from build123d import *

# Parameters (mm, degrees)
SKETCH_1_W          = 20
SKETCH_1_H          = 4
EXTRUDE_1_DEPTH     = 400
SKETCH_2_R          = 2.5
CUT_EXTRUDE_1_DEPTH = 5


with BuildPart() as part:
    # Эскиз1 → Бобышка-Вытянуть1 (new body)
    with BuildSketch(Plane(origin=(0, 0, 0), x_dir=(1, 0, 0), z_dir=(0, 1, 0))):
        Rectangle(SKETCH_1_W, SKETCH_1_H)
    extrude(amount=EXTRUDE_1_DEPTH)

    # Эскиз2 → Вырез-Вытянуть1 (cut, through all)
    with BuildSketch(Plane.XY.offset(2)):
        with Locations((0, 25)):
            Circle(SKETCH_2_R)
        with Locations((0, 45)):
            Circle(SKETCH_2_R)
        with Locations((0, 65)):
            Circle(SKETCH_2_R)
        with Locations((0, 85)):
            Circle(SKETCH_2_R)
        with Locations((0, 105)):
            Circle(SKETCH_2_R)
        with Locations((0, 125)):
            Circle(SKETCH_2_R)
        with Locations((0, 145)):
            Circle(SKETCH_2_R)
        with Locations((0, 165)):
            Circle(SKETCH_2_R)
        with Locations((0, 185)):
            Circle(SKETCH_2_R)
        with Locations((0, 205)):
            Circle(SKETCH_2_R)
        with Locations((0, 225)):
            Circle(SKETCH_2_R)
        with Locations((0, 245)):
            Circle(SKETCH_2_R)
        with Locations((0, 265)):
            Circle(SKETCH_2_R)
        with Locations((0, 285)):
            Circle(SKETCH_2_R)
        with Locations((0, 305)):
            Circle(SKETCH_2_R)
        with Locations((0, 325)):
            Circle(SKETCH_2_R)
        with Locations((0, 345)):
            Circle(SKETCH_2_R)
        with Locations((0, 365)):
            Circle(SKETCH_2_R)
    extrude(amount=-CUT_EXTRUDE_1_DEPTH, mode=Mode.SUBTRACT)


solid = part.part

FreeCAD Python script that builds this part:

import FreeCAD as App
import Part
import Sketcher
from FreeCAD import Vector


def add_polygon(sketch, points):
    """Adds a closed chain of lines whose ends are joined by coincident constraints."""
    first, n = sketch.GeometryCount, len(points)
    for a, b in zip(points, points[1:] + points[:1]):
        sketch.addGeometry(Part.LineSegment(App.Vector(*a, 0), App.Vector(*b, 0)), False)
    for i in range(n):
        sketch.addConstraint(Sketcher.Constraint("Coincident", first + i, 2, first + (i + 1) % n, 1))

doc = App.newDocument("Part")
body = doc.addObject("PartDesign::Body", "Body")

# Sketch on XZ plane
sketch1 = doc.addObject("Sketcher::SketchObject", "Sketch")
body.addObject(sketch1)
sketch1.AttachmentSupport = (doc.XZ_Plane, [""])
sketch1.MapMode = "FlatFace"
add_polygon(sketch1, [(-10, -2), (-10, 2), (10, 2), (10, -2)])  # lines 0-3
sketch1.addConstraint([
    Sketcher.Constraint("Vertical", 0),
    Sketcher.Constraint("Horizontal", 1),
    Sketcher.Constraint("Vertical", 2),
    Sketcher.Constraint("Horizontal", 3),
    Sketcher.Constraint("Symmetric", 0, 2, 2, 2, -1, 1),
    Sketcher.Constraint("DistanceX", 1, 1, 1, 2, 20.0),
    Sketcher.Constraint("DistanceY", 0, 1, 0, 2, 4.0),
])
pad1 = doc.addObject("PartDesign::Pad", "Pad")
body.addObject(pad1)
pad1.Profile = sketch1
pad1.Length = 400
pad1.Reversed = True

# Sketch on XY plane
sketch2 = doc.addObject("Sketcher::SketchObject", "Sketch001")
body.addObject(sketch2)
sketch2.AttachmentSupport = (doc.XY_Plane, [""])
sketch2.MapMode = "FlatFace"
sketch2.AttachmentOffset = App.Placement(Vector(0, 0, 2), App.Rotation())
sketch2.addGeometry([
    Part.Circle(Vector(0, 25, 0), Vector(0, 0, 1), 2.5),  # 0
    Part.Circle(Vector(0, 45, 0), Vector(0, 0, 1), 2.5),  # 1
    Part.Circle(Vector(0, 65, 0), Vector(0, 0, 1), 2.5),  # 2
    Part.Circle(Vector(0, 85, 0), Vector(0, 0, 1), 2.5),  # 3
    Part.Circle(Vector(0, 105, 0), Vector(0, 0, 1), 2.5),  # 4
    Part.Circle(Vector(0, 125, 0), Vector(0, 0, 1), 2.5),  # 5
    Part.Circle(Vector(0, 145, 0), Vector(0, 0, 1), 2.5),  # 6
    Part.Circle(Vector(0, 165, 0), Vector(0, 0, 1), 2.5),  # 7
    Part.Circle(Vector(0, 185, 0), Vector(0, 0, 1), 2.5),  # 8
    Part.Circle(Vector(0, 205, 0), Vector(0, 0, 1), 2.5),  # 9
    Part.Circle(Vector(0, 225, 0), Vector(0, 0, 1), 2.5),  # 10
    Part.Circle(Vector(0, 245, 0), Vector(0, 0, 1), 2.5),  # 11
    Part.Circle(Vector(0, 265, 0), Vector(0, 0, 1), 2.5),  # 12
    Part.Circle(Vector(0, 285, 0), Vector(0, 0, 1), 2.5),  # 13
    Part.Circle(Vector(0, 305, 0), Vector(0, 0, 1), 2.5),  # 14
    Part.Circle(Vector(0, 325, 0), Vector(0, 0, 1), 2.5),  # 15
    Part.Circle(Vector(0, 345, 0), Vector(0, 0, 1), 2.5),  # 16
    Part.Circle(Vector(0, 365, 0), Vector(0, 0, 1), 2.5),  # 17
], False)
sketch2.addConstraint([
    Sketcher.Constraint("Equal", 0, 1),
    Sketcher.Constraint("Equal", 1, 2),
    Sketcher.Constraint("Equal", 2, 3),
    Sketcher.Constraint("Equal", 3, 4),
    Sketcher.Constraint("Equal", 4, 5),
    Sketcher.Constraint("Equal", 5, 6),
    Sketcher.Constraint("Equal", 6, 7),
    Sketcher.Constraint("Equal", 7, 8),
    Sketcher.Constraint("Equal", 8, 9),
    Sketcher.Constraint("Equal", 9, 10),
    Sketcher.Constraint("Equal", 10, 11),
    Sketcher.Constraint("Equal", 11, 12),
    Sketcher.Constraint("Equal", 12, 13),
    Sketcher.Constraint("Equal", 13, 14),
    Sketcher.Constraint("Equal", 14, 15),
    Sketcher.Constraint("Equal", 15, 16),
    Sketcher.Constraint("Equal", 16, 17),
    Sketcher.Constraint("PointOnObject", 0, 3, -2),
    Sketcher.Constraint("PointOnObject", 1, 3, -2),
    Sketcher.Constraint("PointOnObject", 2, 3, -2),
    Sketcher.Constraint("PointOnObject", 3, 3, -2),
    Sketcher.Constraint("PointOnObject", 4, 3, -2),
    Sketcher.Constraint("PointOnObject", 5, 3, -2),
    Sketcher.Constraint("PointOnObject", 6, 3, -2),
    Sketcher.Constraint("PointOnObject", 7, 3, -2),
    Sketcher.Constraint("PointOnObject", 8, 3, -2),
    Sketcher.Constraint("PointOnObject", 9, 3, -2),
    Sketcher.Constraint("PointOnObject", 10, 3, -2),
    Sketcher.Constraint("PointOnObject", 11, 3, -2),
    Sketcher.Constraint("PointOnObject", 12, 3, -2),
    Sketcher.Constraint("PointOnObject", 13, 3, -2),
    Sketcher.Constraint("PointOnObject", 14, 3, -2),
    Sketcher.Constraint("PointOnObject", 15, 3, -2),
    Sketcher.Constraint("PointOnObject", 16, 3, -2),
    Sketcher.Constraint("PointOnObject", 17, 3, -2),
    Sketcher.Constraint("Diameter", 0, 5.0),
    Sketcher.Constraint("DistanceY", -1, 1, 0, 3, 25.0),
    Sketcher.Constraint("DistanceY", -1, 1, 1, 3, 45.0),
    Sketcher.Constraint("DistanceY", -1, 1, 2, 3, 65.0),
    Sketcher.Constraint("DistanceY", -1, 1, 3, 3, 85.0),
    Sketcher.Constraint("DistanceY", -1, 1, 4, 3, 105.0),
    Sketcher.Constraint("DistanceY", -1, 1, 5, 3, 125.0),
    Sketcher.Constraint("DistanceY", -1, 1, 6, 3, 145.0),
    Sketcher.Constraint("DistanceY", -1, 1, 7, 3, 165.0),
    Sketcher.Constraint("DistanceY", -1, 1, 8, 3, 185.0),
    Sketcher.Constraint("DistanceY", -1, 1, 9, 3, 205.0),
    Sketcher.Constraint("DistanceY", -1, 1, 10, 3, 225.0),
    Sketcher.Constraint("DistanceY", -1, 1, 11, 3, 245.0),
    Sketcher.Constraint("DistanceY", -1, 1, 12, 3, 265.0),
    Sketcher.Constraint("DistanceY", -1, 1, 13, 3, 285.0),
    Sketcher.Constraint("DistanceY", -1, 1, 14, 3, 305.0),
    Sketcher.Constraint("DistanceY", -1, 1, 15, 3, 325.0),
    Sketcher.Constraint("DistanceY", -1, 1, 16, 3, 345.0),
    Sketcher.Constraint("DistanceY", -1, 1, 17, 3, 365.0),
])
pocket1 = doc.addObject("PartDesign::Pocket", "Pocket")
body.addObject(pocket1)
pocket1.Profile = sketch2
pocket1.Type = "ThroughAll"

doc.recompute()
